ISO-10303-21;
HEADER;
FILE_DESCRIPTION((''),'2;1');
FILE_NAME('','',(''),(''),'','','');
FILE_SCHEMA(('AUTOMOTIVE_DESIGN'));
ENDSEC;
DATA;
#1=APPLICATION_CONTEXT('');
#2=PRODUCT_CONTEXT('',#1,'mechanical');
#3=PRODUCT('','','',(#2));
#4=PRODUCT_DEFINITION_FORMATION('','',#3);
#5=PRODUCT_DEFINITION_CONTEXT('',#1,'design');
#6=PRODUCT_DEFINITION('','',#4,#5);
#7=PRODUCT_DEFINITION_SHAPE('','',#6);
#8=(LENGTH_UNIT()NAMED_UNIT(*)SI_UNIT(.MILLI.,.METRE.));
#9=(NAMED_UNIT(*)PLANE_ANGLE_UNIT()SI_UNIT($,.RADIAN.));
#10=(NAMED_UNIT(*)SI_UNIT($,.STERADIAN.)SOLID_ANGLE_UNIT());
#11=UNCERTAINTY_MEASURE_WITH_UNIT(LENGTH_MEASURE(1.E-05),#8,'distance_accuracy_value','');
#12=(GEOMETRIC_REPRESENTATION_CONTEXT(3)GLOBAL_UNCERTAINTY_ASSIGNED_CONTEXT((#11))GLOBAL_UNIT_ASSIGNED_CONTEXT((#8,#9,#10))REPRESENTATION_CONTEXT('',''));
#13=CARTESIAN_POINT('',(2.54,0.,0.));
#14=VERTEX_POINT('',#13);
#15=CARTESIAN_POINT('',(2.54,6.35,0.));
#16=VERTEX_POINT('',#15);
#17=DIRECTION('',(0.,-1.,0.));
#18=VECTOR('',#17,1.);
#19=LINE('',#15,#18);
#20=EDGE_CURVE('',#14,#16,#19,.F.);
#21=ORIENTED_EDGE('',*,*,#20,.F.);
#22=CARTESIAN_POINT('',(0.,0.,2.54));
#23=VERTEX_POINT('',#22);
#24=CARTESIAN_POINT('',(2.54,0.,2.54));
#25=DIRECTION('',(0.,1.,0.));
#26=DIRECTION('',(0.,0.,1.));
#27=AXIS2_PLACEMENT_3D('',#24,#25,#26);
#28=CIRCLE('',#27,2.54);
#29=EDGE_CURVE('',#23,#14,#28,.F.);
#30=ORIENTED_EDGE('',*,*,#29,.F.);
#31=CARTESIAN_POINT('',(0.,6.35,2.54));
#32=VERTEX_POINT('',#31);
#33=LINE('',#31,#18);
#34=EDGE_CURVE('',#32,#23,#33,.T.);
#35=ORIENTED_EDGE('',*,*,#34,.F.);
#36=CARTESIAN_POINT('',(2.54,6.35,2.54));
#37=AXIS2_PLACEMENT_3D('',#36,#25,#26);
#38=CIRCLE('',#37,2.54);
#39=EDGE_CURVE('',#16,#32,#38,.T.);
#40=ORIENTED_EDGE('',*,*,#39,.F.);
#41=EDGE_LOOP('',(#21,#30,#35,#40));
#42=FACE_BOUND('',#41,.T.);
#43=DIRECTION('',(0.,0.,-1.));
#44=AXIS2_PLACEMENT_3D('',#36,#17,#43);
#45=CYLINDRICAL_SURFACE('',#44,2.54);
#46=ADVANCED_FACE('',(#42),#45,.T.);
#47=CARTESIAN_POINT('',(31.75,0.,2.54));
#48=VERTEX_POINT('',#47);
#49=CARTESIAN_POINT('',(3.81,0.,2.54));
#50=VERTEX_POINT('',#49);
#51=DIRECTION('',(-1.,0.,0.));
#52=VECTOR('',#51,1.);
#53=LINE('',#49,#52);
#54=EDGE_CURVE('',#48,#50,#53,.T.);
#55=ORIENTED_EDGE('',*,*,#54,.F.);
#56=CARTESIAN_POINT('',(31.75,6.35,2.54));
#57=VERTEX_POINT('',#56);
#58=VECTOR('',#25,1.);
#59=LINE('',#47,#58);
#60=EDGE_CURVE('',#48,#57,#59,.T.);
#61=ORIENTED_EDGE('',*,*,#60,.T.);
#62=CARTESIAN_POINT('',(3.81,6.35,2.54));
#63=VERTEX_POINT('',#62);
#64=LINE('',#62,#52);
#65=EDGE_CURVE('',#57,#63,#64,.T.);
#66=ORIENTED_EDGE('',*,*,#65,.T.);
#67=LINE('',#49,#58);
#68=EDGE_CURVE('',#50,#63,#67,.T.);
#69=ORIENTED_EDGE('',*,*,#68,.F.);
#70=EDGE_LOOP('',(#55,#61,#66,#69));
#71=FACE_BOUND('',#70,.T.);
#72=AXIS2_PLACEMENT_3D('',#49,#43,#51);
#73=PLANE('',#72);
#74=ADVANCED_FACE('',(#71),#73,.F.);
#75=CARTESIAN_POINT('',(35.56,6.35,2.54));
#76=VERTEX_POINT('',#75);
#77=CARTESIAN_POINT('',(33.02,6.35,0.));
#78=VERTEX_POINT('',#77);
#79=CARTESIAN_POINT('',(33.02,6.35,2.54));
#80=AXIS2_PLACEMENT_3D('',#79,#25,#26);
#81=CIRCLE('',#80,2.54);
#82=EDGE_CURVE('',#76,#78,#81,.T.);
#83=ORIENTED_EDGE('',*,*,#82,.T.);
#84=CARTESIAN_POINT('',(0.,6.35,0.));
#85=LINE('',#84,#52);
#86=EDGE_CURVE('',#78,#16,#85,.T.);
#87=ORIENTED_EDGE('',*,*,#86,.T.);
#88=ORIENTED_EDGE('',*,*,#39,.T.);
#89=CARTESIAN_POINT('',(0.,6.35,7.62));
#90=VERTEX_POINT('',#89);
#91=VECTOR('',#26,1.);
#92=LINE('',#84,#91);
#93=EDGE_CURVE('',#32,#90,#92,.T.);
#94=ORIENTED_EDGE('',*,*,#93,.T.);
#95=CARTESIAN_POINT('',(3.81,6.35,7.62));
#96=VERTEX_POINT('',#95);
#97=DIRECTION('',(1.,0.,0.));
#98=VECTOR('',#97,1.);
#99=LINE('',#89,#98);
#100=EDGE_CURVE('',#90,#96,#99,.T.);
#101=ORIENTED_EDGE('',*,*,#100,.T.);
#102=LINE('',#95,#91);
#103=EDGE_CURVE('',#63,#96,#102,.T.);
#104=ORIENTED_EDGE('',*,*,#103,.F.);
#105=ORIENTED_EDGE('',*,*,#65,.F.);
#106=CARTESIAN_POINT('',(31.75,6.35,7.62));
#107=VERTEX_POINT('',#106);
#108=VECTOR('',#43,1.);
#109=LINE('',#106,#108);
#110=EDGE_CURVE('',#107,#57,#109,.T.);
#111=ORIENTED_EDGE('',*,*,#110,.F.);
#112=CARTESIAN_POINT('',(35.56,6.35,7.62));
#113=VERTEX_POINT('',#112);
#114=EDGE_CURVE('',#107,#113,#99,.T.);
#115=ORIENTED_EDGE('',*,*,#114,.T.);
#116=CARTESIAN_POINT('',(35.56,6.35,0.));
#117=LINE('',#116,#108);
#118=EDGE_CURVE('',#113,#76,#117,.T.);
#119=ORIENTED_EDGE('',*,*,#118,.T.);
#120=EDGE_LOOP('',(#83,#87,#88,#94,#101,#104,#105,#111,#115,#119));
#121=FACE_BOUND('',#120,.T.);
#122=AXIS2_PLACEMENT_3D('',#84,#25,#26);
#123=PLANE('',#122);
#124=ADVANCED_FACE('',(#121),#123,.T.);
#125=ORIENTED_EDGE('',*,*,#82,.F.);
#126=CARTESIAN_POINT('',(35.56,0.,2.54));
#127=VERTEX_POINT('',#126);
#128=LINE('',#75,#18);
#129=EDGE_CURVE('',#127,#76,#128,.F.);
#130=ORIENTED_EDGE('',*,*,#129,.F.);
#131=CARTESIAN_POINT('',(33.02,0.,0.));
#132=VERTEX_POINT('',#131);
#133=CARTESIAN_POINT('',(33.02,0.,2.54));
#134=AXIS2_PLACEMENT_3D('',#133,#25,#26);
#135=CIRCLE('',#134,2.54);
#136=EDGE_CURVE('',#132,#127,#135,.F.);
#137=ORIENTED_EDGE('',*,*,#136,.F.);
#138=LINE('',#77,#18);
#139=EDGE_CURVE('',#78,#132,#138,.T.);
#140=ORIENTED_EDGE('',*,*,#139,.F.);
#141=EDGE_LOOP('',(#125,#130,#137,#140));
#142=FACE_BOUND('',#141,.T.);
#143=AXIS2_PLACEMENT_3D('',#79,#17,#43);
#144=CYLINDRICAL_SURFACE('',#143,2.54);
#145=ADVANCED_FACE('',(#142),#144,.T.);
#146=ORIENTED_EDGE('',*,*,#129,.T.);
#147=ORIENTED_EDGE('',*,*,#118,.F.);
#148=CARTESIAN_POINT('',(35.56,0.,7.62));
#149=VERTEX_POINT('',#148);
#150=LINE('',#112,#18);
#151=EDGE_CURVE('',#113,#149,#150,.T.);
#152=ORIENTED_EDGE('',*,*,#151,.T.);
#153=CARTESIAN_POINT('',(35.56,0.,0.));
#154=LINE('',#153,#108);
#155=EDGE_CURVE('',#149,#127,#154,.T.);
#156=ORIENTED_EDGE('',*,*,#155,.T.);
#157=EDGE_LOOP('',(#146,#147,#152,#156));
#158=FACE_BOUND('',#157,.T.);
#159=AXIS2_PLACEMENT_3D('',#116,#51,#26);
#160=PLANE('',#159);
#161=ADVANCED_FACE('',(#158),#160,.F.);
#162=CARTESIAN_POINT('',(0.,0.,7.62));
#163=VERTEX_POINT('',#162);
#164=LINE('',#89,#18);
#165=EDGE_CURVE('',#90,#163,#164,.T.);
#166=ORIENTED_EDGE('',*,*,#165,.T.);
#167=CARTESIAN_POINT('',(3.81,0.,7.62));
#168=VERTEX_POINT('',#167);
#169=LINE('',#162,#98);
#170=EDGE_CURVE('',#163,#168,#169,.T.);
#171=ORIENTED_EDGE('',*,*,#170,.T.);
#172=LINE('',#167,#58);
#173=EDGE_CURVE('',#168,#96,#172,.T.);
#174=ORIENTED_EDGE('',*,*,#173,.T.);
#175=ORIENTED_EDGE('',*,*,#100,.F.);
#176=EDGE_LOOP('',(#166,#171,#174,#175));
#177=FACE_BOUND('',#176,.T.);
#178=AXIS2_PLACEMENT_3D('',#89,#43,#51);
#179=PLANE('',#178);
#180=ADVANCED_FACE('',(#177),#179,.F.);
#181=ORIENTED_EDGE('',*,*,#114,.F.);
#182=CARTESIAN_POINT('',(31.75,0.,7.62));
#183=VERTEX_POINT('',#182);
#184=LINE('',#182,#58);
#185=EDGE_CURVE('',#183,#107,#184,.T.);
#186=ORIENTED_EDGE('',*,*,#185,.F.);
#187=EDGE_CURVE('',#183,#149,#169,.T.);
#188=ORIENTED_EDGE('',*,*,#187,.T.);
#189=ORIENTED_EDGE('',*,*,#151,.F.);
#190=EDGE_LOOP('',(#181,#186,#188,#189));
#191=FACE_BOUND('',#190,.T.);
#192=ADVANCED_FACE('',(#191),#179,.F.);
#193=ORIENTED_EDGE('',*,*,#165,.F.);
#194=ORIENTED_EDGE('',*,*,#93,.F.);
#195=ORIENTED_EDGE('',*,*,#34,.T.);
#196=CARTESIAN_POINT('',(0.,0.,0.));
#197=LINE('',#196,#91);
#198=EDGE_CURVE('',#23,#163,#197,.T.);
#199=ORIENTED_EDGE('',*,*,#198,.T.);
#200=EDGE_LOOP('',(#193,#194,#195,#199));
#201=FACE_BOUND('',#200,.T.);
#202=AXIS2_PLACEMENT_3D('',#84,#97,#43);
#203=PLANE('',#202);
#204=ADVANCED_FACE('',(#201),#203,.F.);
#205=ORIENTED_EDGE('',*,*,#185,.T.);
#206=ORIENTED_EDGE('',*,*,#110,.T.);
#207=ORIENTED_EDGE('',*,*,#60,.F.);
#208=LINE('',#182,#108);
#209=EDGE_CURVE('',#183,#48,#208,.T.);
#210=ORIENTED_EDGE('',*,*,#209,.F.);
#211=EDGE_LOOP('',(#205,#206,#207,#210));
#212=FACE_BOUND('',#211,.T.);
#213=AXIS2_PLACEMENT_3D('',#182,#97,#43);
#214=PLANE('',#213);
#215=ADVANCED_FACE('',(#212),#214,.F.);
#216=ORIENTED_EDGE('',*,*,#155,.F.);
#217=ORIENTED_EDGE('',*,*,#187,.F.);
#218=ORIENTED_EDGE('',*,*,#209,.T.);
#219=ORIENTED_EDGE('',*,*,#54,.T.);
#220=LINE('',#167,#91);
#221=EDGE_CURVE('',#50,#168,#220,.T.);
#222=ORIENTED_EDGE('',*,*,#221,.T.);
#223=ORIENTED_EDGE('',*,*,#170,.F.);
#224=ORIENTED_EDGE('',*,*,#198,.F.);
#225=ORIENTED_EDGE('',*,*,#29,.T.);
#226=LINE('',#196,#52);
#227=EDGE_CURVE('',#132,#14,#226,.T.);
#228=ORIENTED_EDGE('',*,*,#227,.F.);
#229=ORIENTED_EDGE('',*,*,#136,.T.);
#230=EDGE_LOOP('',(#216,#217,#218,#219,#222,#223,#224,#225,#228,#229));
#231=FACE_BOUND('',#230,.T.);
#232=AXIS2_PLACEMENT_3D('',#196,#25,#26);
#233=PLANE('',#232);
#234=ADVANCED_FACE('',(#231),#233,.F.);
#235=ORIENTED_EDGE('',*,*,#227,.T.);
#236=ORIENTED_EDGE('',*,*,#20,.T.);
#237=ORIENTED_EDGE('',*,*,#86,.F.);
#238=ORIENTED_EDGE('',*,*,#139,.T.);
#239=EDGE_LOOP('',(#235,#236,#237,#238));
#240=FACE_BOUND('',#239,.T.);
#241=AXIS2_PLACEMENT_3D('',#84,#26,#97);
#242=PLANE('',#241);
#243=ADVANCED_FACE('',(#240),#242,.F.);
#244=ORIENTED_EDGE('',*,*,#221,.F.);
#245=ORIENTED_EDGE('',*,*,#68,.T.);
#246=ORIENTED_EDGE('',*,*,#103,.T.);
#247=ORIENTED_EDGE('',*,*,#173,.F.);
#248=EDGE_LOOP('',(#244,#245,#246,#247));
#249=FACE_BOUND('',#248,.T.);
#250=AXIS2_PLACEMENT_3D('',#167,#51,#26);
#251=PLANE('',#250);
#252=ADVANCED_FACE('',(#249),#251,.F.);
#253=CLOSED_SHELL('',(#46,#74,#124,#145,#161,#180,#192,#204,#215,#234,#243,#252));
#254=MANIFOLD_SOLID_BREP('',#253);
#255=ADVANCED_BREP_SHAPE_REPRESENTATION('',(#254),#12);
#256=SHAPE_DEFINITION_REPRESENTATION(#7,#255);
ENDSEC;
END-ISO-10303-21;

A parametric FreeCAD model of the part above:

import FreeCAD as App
import Part
import Sketcher
Q = App.Units.Quantity


def edges_at(feature, points):
    """Names of the edges that pass closest to the given points."""
    edges = feature.Shape.Edges
    near = lambda p: min(range(len(edges)), key=lambda i: edges[i].distToShape(Part.Vertex(*p))[0])
    return sorted({f"Edge{near(p) + 1}" for p in points})

doc = App.newDocument("Part")
body = doc.addObject("PartDesign::Body", "Body")

sketch1 = body.newObject("Sketcher::SketchObject", "Sketch")
sketch1.AttachmentSupport = (doc.getObject("XZ_Plane"), [""])
sketch1.MapMode = "FlatFace"
sketch1.addGeometry([
    Part.LineSegment(App.Vector(0, 0, 0), App.Vector(0, 8, 0)),
    Part.LineSegment(App.Vector(0, 8, 0), App.Vector(36, 8, 0)),
    Part.LineSegment(App.Vector(36, 8, 0), App.Vector(36, 0, 0)),
    Part.LineSegment(App.Vector(36, 0, 0), App.Vector(0, 0, 0)),
], False)
sketch1.addConstraint([
    Sketcher.Constraint("Coincident", 0, 2, 1, 1),
    Sketcher.Constraint("Coincident", 1, 2, 2, 1),
    Sketcher.Constraint("Coincident", 2, 2, 3, 1),
    Sketcher.Constraint("Coincident", 3, 2, 0, 1),
    Sketcher.Constraint("Vertical", 0),
    Sketcher.Constraint("Horizontal", 1),
    Sketcher.Constraint("Vertical", 2),
    Sketcher.Constraint("Horizontal", 3),
    Sketcher.Constraint("Coincident", 3, 2, -1, 1),
    Sketcher.Constraint("DistanceX", 1, 1, 1, 2, Q("1.4 in")),
    Sketcher.Constraint("DistanceY", 0, 1, 0, 2, Q("0.3 in")),
])
pad1 = body.newObject("PartDesign::Pad", "Pad")
pad1.Profile = sketch1
pad1.Length = Q("0.25 in")
pad1.Reversed = True

sketch2 = body.newObject("Sketcher::SketchObject", "Sketch001")
sketch2.AttachmentSupport = (doc.getObject("XZ_Plane"), [""])
sketch2.MapMode = "FlatFace"
sketch2.AttachmentOffset = App.Placement(App.Vector(0, 0, -0.25 * 25.4), App.Rotation())
sketch2.addGeometry([
    Part.LineSegment(App.Vector(4, 3, 0), App.Vector(4, 8, 0)),
    Part.LineSegment(App.Vector(4, 8, 0), App.Vector(32, 8, 0)),
    Part.LineSegment(App.Vector(32, 8, 0), App.Vector(32, 3, 0)),
    Part.LineSegment(App.Vector(32, 3, 0), App.Vector(4, 3, 0)),
], False)
sketch2.addConstraint([
    Sketcher.Constraint("Coincident", 0, 2, 1, 1),
    Sketcher.Constraint("Coincident", 1, 2, 2, 1),
    Sketcher.Constraint("Coincident", 2, 2, 3, 1),
    Sketcher.Constraint("Coincident", 3, 2, 0, 1),
    Sketcher.Constraint("Vertical", 0),
    Sketcher.Constraint("Horizontal", 1),
    Sketcher.Constraint("Vertical", 2),
    Sketcher.Constraint("Horizontal", 3),
    Sketcher.Constraint("DistanceX", 1, 1, 1, 2, Q("1.1 in")),
    Sketcher.Constraint("DistanceY", 0, 1, 0, 2, Q("0.2 in")),
    Sketcher.Constraint("DistanceY", -1, 1, 0, 2, Q("0.3 in")),
    Sketcher.Constraint("DistanceX", -1, 1, 0, 2, Q("0.15 in")),
])
pocket1 = body.newObject("PartDesign::Pocket", "Pocket")
pocket1.Profile = sketch2
pocket1.Type = "ThroughAll"
pocket1.Reversed = True
doc.recompute()

fillet = body.newObject("PartDesign::Fillet", "Fillet")
fillet.Base = (pocket1, edges_at(pocket1, [(0, 3.175, 0), (35.56, 3.175, 0)]))
fillet.Radius = Q("0.1 in")

doc.recompute()
